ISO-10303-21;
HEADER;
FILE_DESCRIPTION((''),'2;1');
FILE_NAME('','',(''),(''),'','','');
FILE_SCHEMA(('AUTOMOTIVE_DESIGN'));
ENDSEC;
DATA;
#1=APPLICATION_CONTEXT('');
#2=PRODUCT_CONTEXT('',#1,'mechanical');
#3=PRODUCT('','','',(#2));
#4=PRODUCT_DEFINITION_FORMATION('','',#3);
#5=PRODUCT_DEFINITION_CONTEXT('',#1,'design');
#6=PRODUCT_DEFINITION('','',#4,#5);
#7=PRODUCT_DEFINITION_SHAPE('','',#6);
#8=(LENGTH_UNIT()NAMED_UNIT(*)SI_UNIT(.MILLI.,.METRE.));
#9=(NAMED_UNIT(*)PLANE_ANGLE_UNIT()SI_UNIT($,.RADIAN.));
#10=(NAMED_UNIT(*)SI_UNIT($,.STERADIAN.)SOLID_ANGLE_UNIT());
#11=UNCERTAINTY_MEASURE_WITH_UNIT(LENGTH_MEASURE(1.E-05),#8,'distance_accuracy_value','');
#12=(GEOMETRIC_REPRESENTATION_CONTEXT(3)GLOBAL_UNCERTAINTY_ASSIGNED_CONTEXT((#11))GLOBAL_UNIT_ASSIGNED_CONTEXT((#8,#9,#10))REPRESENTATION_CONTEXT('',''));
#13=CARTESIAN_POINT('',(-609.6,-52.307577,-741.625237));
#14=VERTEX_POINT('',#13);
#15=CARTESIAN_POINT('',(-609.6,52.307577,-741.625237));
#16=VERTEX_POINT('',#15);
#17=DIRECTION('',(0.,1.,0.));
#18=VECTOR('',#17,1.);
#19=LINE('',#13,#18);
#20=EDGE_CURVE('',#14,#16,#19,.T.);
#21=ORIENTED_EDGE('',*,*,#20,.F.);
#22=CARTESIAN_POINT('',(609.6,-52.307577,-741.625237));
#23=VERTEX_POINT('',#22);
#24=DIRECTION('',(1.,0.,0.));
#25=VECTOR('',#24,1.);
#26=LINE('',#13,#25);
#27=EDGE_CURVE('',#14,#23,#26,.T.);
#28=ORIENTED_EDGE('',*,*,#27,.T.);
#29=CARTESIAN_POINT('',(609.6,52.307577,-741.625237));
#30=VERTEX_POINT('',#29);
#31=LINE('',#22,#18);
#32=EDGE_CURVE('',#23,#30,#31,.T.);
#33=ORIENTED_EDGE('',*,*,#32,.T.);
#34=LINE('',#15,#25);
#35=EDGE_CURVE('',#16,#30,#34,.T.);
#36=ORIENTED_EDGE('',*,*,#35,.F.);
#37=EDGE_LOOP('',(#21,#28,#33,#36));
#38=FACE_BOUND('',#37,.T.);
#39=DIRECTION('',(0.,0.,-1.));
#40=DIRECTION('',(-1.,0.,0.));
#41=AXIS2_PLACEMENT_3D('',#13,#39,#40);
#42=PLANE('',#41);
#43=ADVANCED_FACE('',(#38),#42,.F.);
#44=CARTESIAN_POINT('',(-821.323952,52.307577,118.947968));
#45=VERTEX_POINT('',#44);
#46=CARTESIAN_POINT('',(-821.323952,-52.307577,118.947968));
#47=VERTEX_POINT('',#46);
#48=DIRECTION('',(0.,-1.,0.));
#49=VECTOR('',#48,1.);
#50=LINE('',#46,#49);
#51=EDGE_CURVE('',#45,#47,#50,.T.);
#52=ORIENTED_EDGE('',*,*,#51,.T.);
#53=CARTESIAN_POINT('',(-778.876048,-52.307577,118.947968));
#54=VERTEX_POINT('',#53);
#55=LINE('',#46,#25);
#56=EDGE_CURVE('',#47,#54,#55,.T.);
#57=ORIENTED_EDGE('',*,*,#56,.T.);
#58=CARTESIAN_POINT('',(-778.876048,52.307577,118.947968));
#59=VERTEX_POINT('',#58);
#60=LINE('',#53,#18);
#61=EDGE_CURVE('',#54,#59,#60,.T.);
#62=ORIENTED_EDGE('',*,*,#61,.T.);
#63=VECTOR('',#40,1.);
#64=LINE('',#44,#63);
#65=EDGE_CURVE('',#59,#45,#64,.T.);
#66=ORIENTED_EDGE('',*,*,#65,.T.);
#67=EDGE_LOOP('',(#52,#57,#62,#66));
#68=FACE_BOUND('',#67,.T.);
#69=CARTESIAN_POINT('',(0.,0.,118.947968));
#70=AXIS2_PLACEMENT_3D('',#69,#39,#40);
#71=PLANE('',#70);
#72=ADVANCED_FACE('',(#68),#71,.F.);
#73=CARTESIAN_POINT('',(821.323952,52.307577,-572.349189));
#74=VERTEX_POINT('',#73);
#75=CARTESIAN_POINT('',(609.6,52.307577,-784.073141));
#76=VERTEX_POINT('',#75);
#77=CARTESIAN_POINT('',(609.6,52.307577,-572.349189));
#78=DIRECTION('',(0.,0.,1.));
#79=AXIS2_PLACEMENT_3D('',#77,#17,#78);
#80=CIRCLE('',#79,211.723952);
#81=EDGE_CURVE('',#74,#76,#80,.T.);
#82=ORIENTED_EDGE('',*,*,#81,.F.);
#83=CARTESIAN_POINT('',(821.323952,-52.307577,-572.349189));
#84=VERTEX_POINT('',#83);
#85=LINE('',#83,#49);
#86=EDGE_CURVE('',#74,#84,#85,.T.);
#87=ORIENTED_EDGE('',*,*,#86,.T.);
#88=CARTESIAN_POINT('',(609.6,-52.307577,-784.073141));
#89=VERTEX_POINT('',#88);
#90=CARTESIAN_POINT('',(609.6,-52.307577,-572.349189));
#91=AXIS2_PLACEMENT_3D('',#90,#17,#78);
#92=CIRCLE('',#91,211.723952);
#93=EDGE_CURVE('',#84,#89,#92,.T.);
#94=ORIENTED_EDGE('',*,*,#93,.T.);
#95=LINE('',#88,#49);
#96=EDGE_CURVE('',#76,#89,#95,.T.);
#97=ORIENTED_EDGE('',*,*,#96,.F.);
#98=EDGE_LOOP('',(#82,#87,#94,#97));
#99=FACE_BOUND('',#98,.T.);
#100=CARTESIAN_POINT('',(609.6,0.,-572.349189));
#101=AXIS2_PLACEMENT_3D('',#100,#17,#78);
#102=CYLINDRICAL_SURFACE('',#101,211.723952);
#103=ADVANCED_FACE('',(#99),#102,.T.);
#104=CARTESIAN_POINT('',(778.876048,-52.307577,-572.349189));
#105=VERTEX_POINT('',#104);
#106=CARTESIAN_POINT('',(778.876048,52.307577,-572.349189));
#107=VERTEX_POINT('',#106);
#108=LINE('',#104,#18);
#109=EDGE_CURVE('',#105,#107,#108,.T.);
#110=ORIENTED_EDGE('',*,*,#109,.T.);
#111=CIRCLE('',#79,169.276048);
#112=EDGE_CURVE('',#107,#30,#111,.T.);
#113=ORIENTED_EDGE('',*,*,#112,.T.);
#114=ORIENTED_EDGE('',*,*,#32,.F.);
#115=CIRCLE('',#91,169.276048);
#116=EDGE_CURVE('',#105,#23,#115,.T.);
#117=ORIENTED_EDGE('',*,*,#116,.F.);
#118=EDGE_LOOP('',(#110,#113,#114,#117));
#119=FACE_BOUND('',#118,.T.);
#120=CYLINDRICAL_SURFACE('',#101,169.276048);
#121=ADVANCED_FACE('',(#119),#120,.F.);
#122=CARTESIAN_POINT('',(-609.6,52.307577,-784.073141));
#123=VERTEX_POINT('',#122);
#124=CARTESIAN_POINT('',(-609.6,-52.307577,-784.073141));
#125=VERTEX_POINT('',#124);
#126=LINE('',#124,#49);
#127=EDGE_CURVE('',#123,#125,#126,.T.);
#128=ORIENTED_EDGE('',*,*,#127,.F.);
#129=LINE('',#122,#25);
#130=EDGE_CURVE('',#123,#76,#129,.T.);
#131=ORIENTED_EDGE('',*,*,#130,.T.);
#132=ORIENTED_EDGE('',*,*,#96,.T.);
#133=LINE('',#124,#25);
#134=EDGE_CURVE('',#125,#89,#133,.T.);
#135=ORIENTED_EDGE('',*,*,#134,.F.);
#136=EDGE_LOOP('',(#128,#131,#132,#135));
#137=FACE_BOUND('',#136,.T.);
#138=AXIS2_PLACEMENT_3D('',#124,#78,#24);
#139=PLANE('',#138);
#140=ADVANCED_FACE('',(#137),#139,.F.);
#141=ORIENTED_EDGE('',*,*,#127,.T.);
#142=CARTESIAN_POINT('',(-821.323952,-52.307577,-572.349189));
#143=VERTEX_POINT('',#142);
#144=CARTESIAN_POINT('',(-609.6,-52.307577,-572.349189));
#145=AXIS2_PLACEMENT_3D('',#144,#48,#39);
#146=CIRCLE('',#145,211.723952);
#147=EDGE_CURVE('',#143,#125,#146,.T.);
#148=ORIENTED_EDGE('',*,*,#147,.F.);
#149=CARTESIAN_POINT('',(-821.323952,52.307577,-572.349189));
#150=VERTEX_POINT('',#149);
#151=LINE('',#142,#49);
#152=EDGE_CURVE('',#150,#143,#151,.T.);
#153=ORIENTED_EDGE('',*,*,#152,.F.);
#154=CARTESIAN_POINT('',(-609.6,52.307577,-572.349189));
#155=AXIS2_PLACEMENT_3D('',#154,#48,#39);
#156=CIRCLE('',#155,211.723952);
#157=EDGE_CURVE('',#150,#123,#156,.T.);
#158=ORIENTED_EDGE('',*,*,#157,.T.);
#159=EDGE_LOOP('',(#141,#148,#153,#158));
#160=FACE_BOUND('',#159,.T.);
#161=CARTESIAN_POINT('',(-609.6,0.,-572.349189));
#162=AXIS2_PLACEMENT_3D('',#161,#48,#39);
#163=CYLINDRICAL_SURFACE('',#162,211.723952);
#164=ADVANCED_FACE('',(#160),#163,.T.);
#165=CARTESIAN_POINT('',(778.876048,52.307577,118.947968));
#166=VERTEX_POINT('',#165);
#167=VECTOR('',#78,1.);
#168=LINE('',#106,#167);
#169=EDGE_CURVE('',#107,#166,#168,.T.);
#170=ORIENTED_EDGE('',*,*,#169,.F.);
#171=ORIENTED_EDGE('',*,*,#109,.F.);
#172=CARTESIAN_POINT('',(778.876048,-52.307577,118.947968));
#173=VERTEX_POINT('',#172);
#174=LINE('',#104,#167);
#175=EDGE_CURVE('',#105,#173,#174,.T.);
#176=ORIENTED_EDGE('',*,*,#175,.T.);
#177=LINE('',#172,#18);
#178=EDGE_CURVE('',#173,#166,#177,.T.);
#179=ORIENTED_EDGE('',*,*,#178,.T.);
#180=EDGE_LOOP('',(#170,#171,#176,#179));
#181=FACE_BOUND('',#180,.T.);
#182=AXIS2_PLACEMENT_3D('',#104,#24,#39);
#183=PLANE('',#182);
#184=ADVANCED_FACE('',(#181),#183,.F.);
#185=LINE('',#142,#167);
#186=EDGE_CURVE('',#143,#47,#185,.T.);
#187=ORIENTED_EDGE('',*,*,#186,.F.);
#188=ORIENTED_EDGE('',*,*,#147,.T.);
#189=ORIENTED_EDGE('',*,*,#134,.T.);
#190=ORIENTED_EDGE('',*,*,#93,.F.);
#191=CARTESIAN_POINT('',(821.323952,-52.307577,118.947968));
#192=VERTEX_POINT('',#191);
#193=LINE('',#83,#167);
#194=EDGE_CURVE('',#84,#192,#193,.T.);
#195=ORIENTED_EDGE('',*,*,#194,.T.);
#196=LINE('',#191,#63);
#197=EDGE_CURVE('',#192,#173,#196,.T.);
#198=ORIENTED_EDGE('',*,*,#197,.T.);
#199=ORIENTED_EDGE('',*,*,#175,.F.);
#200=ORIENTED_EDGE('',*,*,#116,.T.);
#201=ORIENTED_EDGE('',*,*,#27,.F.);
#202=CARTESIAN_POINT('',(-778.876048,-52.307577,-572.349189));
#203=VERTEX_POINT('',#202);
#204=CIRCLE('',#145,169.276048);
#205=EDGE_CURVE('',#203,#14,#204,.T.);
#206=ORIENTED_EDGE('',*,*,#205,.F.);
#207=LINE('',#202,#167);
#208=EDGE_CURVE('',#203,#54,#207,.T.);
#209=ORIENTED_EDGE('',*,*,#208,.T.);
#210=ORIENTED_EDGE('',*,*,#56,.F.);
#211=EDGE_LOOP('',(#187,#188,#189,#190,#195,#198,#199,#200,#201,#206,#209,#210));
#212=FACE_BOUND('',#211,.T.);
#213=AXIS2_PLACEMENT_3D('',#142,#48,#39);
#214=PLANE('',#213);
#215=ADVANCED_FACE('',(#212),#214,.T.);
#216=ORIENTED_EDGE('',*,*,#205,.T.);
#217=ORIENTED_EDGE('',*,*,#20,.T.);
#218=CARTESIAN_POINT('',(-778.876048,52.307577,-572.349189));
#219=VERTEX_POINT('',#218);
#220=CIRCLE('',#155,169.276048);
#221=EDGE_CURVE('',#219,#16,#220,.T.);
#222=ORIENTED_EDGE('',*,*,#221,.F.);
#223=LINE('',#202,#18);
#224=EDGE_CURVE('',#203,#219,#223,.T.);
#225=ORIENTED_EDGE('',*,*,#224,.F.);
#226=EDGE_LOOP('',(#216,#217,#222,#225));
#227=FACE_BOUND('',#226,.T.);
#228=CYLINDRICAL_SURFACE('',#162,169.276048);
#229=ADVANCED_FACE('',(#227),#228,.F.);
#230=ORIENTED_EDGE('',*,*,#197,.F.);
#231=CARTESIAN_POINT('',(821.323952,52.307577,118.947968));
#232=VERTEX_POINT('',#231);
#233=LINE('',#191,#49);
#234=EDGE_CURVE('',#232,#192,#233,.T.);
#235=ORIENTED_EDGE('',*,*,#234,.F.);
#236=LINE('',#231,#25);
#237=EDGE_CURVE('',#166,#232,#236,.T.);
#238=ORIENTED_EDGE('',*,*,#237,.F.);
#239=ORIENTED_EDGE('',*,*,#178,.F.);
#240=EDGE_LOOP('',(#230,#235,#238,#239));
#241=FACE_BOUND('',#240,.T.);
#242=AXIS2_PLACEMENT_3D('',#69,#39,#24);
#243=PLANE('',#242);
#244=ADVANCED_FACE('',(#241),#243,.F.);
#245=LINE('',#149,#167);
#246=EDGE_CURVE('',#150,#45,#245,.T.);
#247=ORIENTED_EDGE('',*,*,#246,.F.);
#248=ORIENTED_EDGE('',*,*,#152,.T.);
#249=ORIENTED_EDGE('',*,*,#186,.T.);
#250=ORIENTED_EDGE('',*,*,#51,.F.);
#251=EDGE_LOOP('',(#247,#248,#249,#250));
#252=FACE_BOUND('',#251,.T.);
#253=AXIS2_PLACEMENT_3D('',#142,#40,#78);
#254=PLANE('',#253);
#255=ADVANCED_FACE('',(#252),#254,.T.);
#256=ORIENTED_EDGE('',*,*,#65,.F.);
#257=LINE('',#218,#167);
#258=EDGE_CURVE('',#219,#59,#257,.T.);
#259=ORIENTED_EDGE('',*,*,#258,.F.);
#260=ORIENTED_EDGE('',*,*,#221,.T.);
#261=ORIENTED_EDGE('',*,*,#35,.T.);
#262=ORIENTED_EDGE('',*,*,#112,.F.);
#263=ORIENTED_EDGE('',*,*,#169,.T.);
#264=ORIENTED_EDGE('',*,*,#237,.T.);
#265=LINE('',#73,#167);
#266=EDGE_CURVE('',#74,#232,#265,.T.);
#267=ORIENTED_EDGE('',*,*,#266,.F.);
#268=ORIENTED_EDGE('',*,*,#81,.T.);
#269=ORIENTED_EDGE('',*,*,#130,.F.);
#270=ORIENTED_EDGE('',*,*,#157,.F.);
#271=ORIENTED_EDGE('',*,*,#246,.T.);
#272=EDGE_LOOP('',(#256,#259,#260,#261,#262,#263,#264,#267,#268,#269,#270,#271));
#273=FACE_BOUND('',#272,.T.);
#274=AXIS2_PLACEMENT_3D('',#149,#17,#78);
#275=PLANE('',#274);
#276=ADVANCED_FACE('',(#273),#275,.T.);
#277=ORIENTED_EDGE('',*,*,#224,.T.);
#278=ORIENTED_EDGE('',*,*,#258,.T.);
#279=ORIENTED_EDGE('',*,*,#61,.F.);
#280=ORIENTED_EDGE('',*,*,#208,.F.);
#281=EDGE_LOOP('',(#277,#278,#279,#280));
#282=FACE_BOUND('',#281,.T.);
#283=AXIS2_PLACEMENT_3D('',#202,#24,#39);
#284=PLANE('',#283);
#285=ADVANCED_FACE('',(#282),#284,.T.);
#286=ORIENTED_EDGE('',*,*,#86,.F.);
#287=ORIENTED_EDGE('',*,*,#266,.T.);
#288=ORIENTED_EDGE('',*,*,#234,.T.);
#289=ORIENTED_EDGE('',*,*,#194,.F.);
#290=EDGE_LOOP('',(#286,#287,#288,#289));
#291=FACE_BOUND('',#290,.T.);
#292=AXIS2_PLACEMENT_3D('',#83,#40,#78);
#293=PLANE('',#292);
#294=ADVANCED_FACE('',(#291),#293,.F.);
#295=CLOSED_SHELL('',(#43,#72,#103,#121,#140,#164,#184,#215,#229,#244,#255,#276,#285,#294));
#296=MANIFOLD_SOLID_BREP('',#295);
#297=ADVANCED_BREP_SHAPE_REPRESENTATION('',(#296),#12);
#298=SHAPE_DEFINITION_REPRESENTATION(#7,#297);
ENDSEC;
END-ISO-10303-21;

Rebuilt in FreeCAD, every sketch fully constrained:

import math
import FreeCAD as App
import Part
import Sketcher
from FreeCAD import Vector
Q = App.Units.Quantity

doc = App.newDocument("Part")
body = doc.addObject("PartDesign::Body", "Body")

# Sketch on XY plane
sketch1 = doc.addObject("Sketcher::SketchObject", "Sketch")
body.addObject(sketch1)
sketch1.AttachmentSupport = (doc.XY_Plane, [""])
sketch1.MapMode = "FlatFace"
sketch1.AttachmentOffset = App.Placement(Vector(0, 0, 118.947968), App.Rotation())
sketch1.addGeometry(Part.LineSegment(Vector(-821, 52, 0), Vector(-821, -52, 0)), False)
sketch1.addGeometry(Part.LineSegment(Vector(-821, -52, 0), Vector(-779, -52, 0)), False)
sketch1.addGeometry(Part.LineSegment(Vector(-779, -52, 0), Vector(-779, 52, 0)), False)
sketch1.addGeometry(Part.LineSegment(Vector(-779, 52, 0), Vector(-821, 52, 0)), False)
sketch1.addConstraint(Sketcher.Constraint("Coincident", 0, 2, 1, 1))
sketch1.addConstraint(Sketcher.Constraint("Coincident", 1, 2, 2, 1))
sketch1.addConstraint(Sketcher.Constraint("Coincident", 2, 2, 3, 1))
sketch1.addConstraint(Sketcher.Constraint("Coincident", 3, 2, 0, 1))
sketch1.addConstraint(Sketcher.Constraint("Vertical", 0))
sketch1.addConstraint(Sketcher.Constraint("Horizontal", 1))
sketch1.addConstraint(Sketcher.Constraint("Vertical", 2))
sketch1.addConstraint(Sketcher.Constraint("Horizontal", 3))
sketch1.addConstraint(Sketcher.Constraint("DistanceX", 1, 1, 1, 2, Q("42.447904 mm")))
sketch1.addConstraint(Sketcher.Constraint("DistanceY", 0, 2, 0, 1, Q("104.615155 mm")))
sketch1.addConstraint(Sketcher.Constraint("DistanceX", 0, 2, -1, 1, Q("821.323952 mm")))
sketch1.addConstraint(Sketcher.Constraint("DistanceY", 0, 2, -1, 1, Q("52.307577 mm")))

# Sketch on XZ plane
sketch2 = doc.addObject("Sketcher::SketchObject", "Sketch001")
body.addObject(sketch2)
sketch2.AttachmentSupport = (doc.XZ_Plane, [""])
sketch2.MapMode = "FlatFace"
sketch2.addGeometry(Part.LineSegment(Vector(0, -763, 0), Vector(-610, -763, 0)), False)
sketch2.addGeometry(Part.ArcOfCircle(Part.Circle(Vector(-610, -572, 0), Vector(0, 0, 1), 190), math.radians(180), math.radians(270)), False)
sketch2.addGeometry(Part.LineSegment(Vector(-800, -572, 0), Vector(-800, 119, 0)), False)
sketch2.addConstraint(Sketcher.Constraint("Tangent", 0, 2, 1, 2))
sketch2.addConstraint(Sketcher.Constraint("Tangent", 1, 1, 2, 1))
sketch2.addConstraint(Sketcher.Constraint("Horizontal", 0))
sketch2.addConstraint(Sketcher.Constraint("Vertical", 2))
sketch2.addConstraint(Sketcher.Constraint("PointOnObject", 0, 1, -2))
sketch2.addConstraint(Sketcher.Constraint("Radius", 1, Q("7.5 in")))
sketch2.addConstraint(Sketcher.Constraint("DistanceX", 0, 2, 0, 1, Q("24 in")))
sketch2.addConstraint(Sketcher.Constraint("DistanceY", 2, 1, 2, 2, Q("691.297157 mm")))
sketch2.addConstraint(Sketcher.Constraint("DistanceY", 1, 3, -1, 1, Q("572.349189 mm")))
doc.recompute()

additivepipe = doc.addObject("PartDesign::AdditivePipe", "AdditivePipe")
body.addObject(additivepipe)
additivepipe.Profile = sketch1
additivepipe.Spine = (sketch2, ["Edge1", "Edge2", "Edge3"])
doc.recompute()

mirrored = doc.addObject("PartDesign::Mirrored", "Mirrored")
body.addObject(mirrored)
mirrored.Originals = [additivepipe]
mirrored.MirrorPlane = (doc.YZ_Plane, [""])
body.Tip = mirrored

doc.recompute()
